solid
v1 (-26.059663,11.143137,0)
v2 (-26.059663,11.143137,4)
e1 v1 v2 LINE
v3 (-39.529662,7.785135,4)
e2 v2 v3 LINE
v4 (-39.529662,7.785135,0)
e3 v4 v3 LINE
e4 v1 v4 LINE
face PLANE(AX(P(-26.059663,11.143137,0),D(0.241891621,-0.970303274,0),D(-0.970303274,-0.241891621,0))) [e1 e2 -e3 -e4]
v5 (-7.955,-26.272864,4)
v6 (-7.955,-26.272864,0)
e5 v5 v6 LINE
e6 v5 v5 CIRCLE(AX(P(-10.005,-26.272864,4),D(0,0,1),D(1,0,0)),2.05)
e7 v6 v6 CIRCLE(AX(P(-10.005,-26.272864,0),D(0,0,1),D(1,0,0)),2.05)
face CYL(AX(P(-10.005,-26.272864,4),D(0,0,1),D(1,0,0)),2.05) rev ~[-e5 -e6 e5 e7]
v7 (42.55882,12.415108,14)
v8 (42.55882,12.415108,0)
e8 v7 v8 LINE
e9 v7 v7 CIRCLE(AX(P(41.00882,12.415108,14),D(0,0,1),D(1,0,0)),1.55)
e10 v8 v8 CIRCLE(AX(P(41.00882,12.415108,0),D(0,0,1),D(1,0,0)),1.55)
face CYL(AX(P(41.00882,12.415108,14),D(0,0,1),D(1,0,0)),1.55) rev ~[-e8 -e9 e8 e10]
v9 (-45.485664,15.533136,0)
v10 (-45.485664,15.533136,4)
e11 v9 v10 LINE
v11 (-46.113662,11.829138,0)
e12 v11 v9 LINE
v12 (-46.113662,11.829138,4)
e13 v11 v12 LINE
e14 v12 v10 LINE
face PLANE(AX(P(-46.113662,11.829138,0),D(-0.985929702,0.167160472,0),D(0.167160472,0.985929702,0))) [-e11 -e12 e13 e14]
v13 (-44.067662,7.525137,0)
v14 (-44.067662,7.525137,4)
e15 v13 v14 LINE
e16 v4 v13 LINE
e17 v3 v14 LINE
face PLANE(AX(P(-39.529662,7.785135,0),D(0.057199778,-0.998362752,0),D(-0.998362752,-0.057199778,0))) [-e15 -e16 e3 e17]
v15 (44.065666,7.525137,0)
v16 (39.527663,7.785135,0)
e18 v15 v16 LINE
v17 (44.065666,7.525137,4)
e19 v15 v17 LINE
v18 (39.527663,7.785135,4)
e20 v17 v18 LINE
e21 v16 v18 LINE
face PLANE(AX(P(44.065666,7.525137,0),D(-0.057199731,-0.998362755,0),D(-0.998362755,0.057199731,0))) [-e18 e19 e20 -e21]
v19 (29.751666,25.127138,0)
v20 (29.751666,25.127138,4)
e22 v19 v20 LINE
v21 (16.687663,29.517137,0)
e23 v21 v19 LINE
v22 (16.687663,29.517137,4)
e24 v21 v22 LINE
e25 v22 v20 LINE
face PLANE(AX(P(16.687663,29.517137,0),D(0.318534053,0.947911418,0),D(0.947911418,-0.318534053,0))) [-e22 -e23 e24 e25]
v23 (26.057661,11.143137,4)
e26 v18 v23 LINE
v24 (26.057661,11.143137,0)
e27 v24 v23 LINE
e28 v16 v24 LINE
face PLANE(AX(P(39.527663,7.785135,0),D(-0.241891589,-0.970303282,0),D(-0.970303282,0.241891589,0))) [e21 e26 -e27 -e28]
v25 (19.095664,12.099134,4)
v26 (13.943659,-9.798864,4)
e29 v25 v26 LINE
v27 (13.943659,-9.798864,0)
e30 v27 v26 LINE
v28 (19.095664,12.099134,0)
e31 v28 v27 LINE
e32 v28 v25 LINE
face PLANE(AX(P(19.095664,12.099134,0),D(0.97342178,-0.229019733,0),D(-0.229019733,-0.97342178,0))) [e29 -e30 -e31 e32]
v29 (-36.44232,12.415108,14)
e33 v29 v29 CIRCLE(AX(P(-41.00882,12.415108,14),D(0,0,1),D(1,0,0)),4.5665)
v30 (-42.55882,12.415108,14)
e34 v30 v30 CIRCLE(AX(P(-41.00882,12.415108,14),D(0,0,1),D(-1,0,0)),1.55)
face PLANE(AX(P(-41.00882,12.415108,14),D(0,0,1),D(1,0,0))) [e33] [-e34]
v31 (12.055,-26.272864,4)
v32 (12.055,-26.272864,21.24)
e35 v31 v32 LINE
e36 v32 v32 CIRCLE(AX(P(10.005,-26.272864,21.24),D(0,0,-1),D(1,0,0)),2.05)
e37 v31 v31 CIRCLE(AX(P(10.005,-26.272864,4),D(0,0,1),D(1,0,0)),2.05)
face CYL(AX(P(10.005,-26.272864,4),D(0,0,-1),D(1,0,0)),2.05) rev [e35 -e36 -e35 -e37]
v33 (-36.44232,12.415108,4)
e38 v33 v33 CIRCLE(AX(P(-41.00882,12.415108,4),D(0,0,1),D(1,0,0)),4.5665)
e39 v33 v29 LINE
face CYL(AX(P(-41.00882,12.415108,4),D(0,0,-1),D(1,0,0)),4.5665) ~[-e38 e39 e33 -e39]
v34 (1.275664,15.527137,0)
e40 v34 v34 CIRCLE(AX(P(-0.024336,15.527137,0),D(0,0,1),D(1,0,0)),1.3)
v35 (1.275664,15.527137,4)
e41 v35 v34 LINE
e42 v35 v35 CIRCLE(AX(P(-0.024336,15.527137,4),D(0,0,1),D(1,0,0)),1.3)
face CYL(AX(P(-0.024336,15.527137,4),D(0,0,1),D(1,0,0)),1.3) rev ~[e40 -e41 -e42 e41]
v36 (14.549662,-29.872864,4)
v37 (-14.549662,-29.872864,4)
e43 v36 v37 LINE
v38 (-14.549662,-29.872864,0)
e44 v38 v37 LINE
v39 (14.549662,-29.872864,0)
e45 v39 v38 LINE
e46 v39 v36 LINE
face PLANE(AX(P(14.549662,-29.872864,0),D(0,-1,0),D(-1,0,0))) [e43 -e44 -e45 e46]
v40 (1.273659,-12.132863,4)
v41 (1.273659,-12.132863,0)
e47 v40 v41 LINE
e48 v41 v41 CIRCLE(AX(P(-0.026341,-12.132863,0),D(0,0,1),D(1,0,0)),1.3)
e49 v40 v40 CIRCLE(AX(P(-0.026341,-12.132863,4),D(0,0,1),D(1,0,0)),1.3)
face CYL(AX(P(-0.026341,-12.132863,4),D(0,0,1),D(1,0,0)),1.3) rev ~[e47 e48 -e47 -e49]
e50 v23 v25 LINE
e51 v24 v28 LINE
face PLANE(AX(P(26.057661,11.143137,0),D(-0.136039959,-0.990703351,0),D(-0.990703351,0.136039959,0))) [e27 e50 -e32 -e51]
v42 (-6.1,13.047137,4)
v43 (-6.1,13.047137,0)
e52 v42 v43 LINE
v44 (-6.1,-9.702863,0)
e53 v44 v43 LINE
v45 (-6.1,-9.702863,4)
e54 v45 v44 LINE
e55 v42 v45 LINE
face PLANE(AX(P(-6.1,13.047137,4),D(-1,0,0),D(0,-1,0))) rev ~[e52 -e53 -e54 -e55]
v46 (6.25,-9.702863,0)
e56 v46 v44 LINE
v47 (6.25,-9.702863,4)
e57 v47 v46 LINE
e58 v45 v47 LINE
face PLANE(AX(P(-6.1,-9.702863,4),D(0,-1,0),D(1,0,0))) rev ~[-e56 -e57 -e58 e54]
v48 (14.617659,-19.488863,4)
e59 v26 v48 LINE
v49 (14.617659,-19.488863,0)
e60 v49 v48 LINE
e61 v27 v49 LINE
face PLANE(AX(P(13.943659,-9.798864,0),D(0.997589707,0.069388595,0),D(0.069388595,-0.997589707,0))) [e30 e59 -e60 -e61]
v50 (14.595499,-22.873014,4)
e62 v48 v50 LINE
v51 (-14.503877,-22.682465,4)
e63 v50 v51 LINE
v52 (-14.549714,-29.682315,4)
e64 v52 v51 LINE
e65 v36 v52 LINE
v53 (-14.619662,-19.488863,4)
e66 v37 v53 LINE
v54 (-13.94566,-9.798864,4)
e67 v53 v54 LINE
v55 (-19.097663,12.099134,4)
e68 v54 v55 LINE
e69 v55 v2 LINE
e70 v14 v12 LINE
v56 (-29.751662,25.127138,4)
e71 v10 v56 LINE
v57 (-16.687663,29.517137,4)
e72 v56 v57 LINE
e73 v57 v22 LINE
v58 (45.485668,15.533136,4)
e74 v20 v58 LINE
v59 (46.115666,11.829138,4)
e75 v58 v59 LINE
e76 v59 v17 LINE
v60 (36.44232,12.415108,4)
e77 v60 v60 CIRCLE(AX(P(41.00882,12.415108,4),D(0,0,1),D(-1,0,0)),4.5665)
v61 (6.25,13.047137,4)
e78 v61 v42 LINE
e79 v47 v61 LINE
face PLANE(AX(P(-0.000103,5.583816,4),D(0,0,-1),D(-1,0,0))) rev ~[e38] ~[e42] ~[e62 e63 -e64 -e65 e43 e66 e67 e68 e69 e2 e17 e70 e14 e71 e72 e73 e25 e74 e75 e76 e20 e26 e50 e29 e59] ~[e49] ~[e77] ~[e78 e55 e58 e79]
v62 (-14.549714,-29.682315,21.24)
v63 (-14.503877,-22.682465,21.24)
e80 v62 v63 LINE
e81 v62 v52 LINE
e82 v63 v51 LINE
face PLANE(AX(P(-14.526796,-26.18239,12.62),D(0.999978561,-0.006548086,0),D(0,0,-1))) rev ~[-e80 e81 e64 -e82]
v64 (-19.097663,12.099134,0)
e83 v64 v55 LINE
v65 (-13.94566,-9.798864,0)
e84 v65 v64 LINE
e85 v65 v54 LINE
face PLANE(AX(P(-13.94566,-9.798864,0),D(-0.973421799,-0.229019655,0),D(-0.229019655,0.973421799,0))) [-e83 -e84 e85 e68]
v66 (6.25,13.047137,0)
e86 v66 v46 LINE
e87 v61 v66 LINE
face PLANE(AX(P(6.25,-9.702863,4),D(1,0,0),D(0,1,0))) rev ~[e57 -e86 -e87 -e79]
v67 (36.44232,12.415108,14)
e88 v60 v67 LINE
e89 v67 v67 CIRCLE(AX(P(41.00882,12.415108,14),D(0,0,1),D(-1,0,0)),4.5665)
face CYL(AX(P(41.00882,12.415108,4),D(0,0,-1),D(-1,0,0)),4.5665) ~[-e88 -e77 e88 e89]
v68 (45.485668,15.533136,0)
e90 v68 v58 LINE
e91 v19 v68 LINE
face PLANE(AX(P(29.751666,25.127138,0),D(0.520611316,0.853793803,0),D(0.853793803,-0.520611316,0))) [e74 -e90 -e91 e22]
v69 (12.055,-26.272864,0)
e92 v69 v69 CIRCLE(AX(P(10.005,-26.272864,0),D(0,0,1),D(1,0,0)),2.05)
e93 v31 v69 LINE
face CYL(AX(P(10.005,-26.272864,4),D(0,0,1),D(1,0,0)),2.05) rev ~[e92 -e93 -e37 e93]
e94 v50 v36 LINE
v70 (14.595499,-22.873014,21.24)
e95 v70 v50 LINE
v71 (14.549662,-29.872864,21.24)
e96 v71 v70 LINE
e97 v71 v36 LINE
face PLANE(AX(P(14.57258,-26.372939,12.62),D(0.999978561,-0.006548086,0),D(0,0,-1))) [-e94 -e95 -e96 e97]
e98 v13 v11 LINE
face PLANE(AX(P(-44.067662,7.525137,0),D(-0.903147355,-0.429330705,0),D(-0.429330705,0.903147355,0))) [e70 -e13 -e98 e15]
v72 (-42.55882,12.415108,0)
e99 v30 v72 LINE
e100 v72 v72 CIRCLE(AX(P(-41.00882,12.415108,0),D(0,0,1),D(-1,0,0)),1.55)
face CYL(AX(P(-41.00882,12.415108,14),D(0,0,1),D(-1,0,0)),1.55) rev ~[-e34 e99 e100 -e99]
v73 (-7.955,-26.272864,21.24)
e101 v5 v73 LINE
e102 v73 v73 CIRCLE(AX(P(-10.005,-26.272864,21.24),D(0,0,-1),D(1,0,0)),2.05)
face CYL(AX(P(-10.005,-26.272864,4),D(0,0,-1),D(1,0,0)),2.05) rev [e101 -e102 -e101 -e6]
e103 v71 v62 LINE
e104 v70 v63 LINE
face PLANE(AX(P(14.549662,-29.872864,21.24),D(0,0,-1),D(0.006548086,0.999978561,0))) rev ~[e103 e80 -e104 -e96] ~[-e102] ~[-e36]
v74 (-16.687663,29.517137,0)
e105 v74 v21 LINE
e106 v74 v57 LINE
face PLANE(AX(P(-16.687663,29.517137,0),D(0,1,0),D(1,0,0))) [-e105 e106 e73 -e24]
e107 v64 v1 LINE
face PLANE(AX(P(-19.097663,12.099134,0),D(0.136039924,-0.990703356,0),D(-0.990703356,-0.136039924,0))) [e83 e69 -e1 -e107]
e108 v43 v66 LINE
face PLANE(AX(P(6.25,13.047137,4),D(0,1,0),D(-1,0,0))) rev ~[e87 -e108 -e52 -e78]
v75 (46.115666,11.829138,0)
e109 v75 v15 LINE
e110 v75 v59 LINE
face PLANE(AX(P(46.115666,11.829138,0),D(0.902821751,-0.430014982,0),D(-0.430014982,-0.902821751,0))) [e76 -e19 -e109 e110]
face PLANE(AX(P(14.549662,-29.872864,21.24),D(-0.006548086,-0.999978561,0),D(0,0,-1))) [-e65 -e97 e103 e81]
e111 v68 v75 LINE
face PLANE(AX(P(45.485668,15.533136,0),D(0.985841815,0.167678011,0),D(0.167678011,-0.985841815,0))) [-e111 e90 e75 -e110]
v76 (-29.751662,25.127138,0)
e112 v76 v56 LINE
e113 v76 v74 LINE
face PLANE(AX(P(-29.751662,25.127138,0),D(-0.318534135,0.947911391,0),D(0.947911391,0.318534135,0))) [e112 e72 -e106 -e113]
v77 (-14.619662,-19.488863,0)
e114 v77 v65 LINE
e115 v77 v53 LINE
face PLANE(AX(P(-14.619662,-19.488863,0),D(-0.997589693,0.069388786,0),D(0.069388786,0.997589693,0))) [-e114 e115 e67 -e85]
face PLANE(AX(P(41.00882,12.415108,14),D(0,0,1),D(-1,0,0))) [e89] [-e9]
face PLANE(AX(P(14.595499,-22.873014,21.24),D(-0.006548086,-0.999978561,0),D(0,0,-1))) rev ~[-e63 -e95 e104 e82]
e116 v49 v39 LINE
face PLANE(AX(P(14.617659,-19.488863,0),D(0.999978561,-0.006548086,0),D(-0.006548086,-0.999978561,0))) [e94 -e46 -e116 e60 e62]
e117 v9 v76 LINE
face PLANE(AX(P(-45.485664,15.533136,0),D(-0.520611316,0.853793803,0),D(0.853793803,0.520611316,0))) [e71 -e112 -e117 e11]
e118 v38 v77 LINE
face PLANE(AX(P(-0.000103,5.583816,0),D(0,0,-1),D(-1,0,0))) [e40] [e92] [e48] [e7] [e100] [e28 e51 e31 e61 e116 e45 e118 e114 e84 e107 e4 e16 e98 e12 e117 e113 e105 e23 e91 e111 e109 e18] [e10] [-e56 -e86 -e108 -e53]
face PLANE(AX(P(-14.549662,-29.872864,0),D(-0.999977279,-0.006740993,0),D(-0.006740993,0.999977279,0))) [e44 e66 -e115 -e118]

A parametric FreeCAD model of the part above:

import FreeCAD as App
import Part
import Sketcher

V = App.Vector


def add_polygon(sketch, points):
    """Adds a closed chain of lines whose ends are joined by coincident constraints."""
    first, n = sketch.GeometryCount, len(points)
    for a, b in zip(points, points[1:] + points[:1]):
        sketch.addGeometry(Part.LineSegment(App.Vector(*a, 0), App.Vector(*b, 0)), False)
    for i in range(n):
        sketch.addConstraint(Sketcher.Constraint("Coincident", first + i, 2, first + (i + 1) % n, 1))

doc = App.newDocument("Part")
body = doc.addObject("PartDesign::Body", "Body")

# Sketch on XY plane
sketch1 = doc.addObject("Sketcher::SketchObject", "Sketch")
body.addObject(sketch1)
sketch1.AttachmentSupport = (doc.XY_Plane, [""])
sketch1.MapMode = "FlatFace"
add_polygon(sketch1, [(16.7, 29.5), (-16.7, 29.5), (-29.8, 25.1), (-45.5, 15.5), (-46.1, 11.8), (-44.1, 7.5), (-39.5, 7.8), (-26.1, 11.1), (-19.1, 12.1), (-13.9, -9.8), (-14.6, -19.5), (-14.5, -29.9), (14.5, -29.9), (14.6, -19.5), (13.9, -9.8), (19.1, 12.1), (26.1, 11.1), (39.5, 7.8), (44.1, 7.5), (46.1, 11.8), (45.5, 15.5), (29.8, 25.1)])  # lines 0-21
sketch1.addConstraint([
    Sketcher.Constraint("Horizontal", 0),
    Sketcher.Constraint("Horizontal", 11),
    Sketcher.Constraint("Symmetric", 2, 2, 19, 2, -2),
    Sketcher.Constraint("Symmetric", 1, 2, 20, 2, -2),
    Sketcher.Constraint("Horizontal", 9, 2, 12, 2),
    Sketcher.Constraint("Horizontal", 8, 2, 13, 2),
    Sketcher.Constraint("Horizontal", 7, 2, 14, 2),
    Sketcher.Constraint("Horizontal", 6, 2, 15, 2),
    Sketcher.Constraint("Horizontal", 5, 2, 16, 2),
    Sketcher.Constraint("Horizontal", 4, 2, 17, 2),
    Sketcher.Constraint("Horizontal", 3, 2, 18, 2),
    Sketcher.Constraint("Equal", 9, 13),
    Sketcher.Constraint("Equal", 8, 14),
    Sketcher.Constraint("Equal", 7, 15),
    Sketcher.Constraint("Equal", 6, 16),
    Sketcher.Constraint("DistanceY", 1, 2, 0, 2, 4.389999),
    Sketcher.Constraint("DistanceX", 4, 2, 0, 2, 27.379999),
    Sketcher.Constraint("DistanceY", 4, 2, 5, 2, 0.259998),
    Sketcher.Constraint("DistanceX", 5, 2, 6, 2, 13.47),
    Sketcher.Constraint("DistanceY", 6, 2, 2, 2, 4.389999),
    Sketcher.Constraint("DistanceX", 7, 2, 0, 2, 2.41),
    Sketcher.Constraint("DistanceY", 9, 2, 8, 2, 9.69),
    Sketcher.Constraint("DistanceX", 6, 2, 9, 2, 11.44),
    Sketcher.Constraint("DistanceX", 9, 2, 10, 2, 0.07),
    Sketcher.Constraint("DistanceX", 17, 2, 18, 2, 2.05),
    Sketcher.Constraint("DistanceX", 19, 2, 18, 2, 0.629999),
    Sketcher.Constraint("DistanceX", 21, 2, 15, 2, 9.369998),
    Sketcher.Constraint("DistanceX", 1, 2, 0, 2, 13.063999),
    Sketcher.Constraint("DistanceX", 2, 2, 1, 2, 15.734002),
    Sketcher.Constraint("DistanceY", 2, 2, 0, 2, 13.984001),
    Sketcher.Constraint("DistanceX", 3, 2, 2, 2, 0.627998),
    Sketcher.Constraint("DistanceY", 3, 2, 2, 2, 3.703999),
    Sketcher.Constraint("DistanceY", 4, 2, 3, 2, 4.304001),
    Sketcher.Constraint("DistanceX", 4, 2, 5, 2, 4.538),
    Sketcher.Constraint("DistanceY", 5, 2, 7, 2, 4.313999),
    Sketcher.Constraint("DistanceY", 8, 2, 6, 2, 20.942001),
    Sketcher.Constraint("DistanceX", 4, 2, 8, 2, 30.122002),
    Sketcher.Constraint("DistanceY", 10, 2, 9, 2, 10.384001),
    Sketcher.Constraint("DistanceX", 11, 2, 15, 2, 11.507999),
    Sketcher.Constraint("DistanceX", 14, 2, 20, 2, 10.656002),
    Sketcher.Constraint("DistanceX", 0, 2, 0, 1, 33.375326),
    Sketcher.Constraint("DistanceY", -1, 1, 1, 2, 25.127138),
])
pad1 = doc.addObject("PartDesign::Pad", "Pad")
body.addObject(pad1)
pad1.Profile = sketch1
pad1.Length = 4

# Sketch on XY plane
sketch2 = doc.addObject("Sketcher::SketchObject", "Sketch001")
body.addObject(sketch2)
sketch2.AttachmentSupport = (doc.XY_Plane, [""])
sketch2.MapMode = "FlatFace"
sketch2.AttachmentOffset = App.Placement(V(0, 0, 4), App.Rotation())
add_polygon(sketch2, [(-6, -10), (6, -10), (6, 13), (-6, 13)])  # lines 0-3
sketch2.addConstraint([
    Sketcher.Constraint("Horizontal", 0),
    Sketcher.Constraint("Vertical", 1),
    Sketcher.Constraint("Horizontal", 2),
    Sketcher.Constraint("Vertical", 3),
    Sketcher.Constraint("DistanceX", 0, 1, 0, 2, 12.35),
    Sketcher.Constraint("DistanceY", 1, 1, 1, 2, 22.75),
    Sketcher.Constraint("DistanceX", 2, 2, -1, 1, 6.1),
    Sketcher.Constraint("DistanceY", 0, 2, -1, 1, 9.702863),
])
pocket1 = doc.addObject("PartDesign::Pocket", "Pocket")
body.addObject(pocket1)
pocket1.Profile = sketch2
pocket1.Type = "ThroughAll"

# Sketch on XY plane
sketch3 = doc.addObject("Sketcher::SketchObject", "Sketch002")
body.addObject(sketch3)
sketch3.AttachmentSupport = (doc.XY_Plane, [""])
sketch3.MapMode = "FlatFace"
sketch3.AttachmentOffset = App.Placement(V(0, 0, 4), App.Rotation())
sketch3.addGeometry([
    Part.Circle(V(-41, 12.4, 0), V(0, 0, 1), 4.6),
    Part.Circle(V(41, 12.4, 0), V(0, 0, 1), 4.6),
], False)
sketch3.addConstraint([
    Sketcher.Constraint("Equal", 0, 1),
    Sketcher.Constraint("Symmetric", 0, 3, 1, 3, -2),
    Sketcher.Constraint("Diameter", 0, 9.133),
    Sketcher.Constraint("DistanceX", 0, 3, -1, 1, 41.00882),
    Sketcher.Constraint("DistanceY", -1, 1, 0, 3, 12.415108),
])
pad2 = doc.addObject("PartDesign::Pad", "Pad001")
body.addObject(pad2)
pad2.Profile = sketch3
pad2.Length = 10

# Sketch on XY plane
sketch4 = doc.addObject("Sketcher::SketchObject", "Sketch003")
body.addObject(sketch4)
sketch4.AttachmentSupport = (doc.XY_Plane, [""])
sketch4.MapMode = "FlatFace"
sketch4.AttachmentOffset = App.Placement(V(0, 0, 4), App.Rotation())
sketch4.addGeometry([
    Part.Circle(V(10, -26.3, 0), V(0, 0, 1), 2),
    Part.Circle(V(-10, -26.3, 0), V(0, 0, 1), 2),
], False)
sketch4.addConstraint([
    Sketcher.Constraint("Equal", 0, 1),
    Sketcher.Constraint("Symmetric", 0, 3, 1, 3, -2),
    Sketcher.Constraint("Diameter", 0, 4.1),
    Sketcher.Constraint("DistanceX", 1, 3, 0, 3, 20.01),
    Sketcher.Constraint("DistanceY", 0, 3, -1, 1, 26.272864),
])
pocket2 = doc.addObject("PartDesign::Pocket", "Pocket001")
body.addObject(pocket2)
pocket2.Profile = sketch4
pocket2.Length = 9.65

# Sketch on XY plane
sketch5 = doc.addObject("Sketcher::SketchObject", "Sketch004")
body.addObject(sketch5)
sketch5.AttachmentSupport = (doc.XY_Plane, [""])
sketch5.MapMode = "FlatFace"
sketch5.AttachmentOffset = App.Placement(V(0, 0, 4), App.Rotation())
sketch5.addGeometry([
    Part.Circle(V(0, -12.1, 0), V(0, 0, 1), 1.3),
    Part.Circle(V(0, 15.5, 0), V(0, 0, 1), 1.3),
], False)
sketch5.addConstraint([
    Sketcher.Constraint("Equal", 0, 1),
    Sketcher.Constraint("Diameter", 0, 2.6),
    Sketcher.Constraint("DistanceY", 0, 3, 1, 3, 27.66),
    Sketcher.Constraint("DistanceX", 0, 3, -1, 1, 0.026341),
    Sketcher.Constraint("DistanceY", 0, 3, -1, 1, 12.132863),
    Sketcher.Constraint("DistanceX", 1, 3, -1, 1, 0.024336),
])
pocket3 = doc.addObject("PartDesign::Pocket", "Pocket002")
body.addObject(pocket3)
pocket3.Profile = sketch5
pocket3.Length = 9.65

# Sketch on an angled plane
sketch6 = doc.addObject("Sketcher::SketchObject", "Sketch005")
body.addObject(sketch6)
sketch6.Placement = App.Placement(V(14.744644, -0.096551, 0), App.Rotation(V(0, 0, -1), V(0.006548086, 0.999978561, 0), V(0.999978561, -0.006548086, 0), "ZXY"))
add_polygon(sketch6, [(-21, -23), (-21, -30), (-4, -30), (-4, -23)])  # lines 0-3
sketch6.addConstraint([
    Sketcher.Constraint("Vertical", 0),
    Sketcher.Constraint("Horizontal", 1),
    Sketcher.Constraint("Vertical", 2),
    Sketcher.Constraint("Horizontal", 3),
    Sketcher.Constraint("DistanceY", 0, 2, 0, 1, 7.0),
    Sketcher.Constraint("DistanceX", 1, 2, -1, 1, 4.0),
    Sketcher.Constraint("DistanceX", 1, 1, 1, 2, 17.24),
    Sketcher.Constraint("DistanceY", 0, 2, -1, 1, 29.776951),
])
pad3 = doc.addObject("PartDesign::Pad", "Pad002")
body.addObject(pad3)
pad3.Profile = sketch6
pad3.Length = 29.1
pad3.Reversed = True

# Sketch on XY plane
sketch7 = doc.addObject("Sketcher::SketchObject", "Sketch006")
body.addObject(sketch7)
sketch7.AttachmentSupport = (doc.XY_Plane, [""])
sketch7.MapMode = "FlatFace"
sketch7.AttachmentOffset = App.Placement(V(0, 0, 4), App.Rotation())
sketch7.addGeometry([
    Part.Circle(V(-10, -26.3, 0), V(0, 0, 1), 2),
    Part.Circle(V(10, -26.3, 0), V(0, 0, 1), 2),
], False)
sketch7.addConstraint([
    Sketcher.Constraint("Equal", 0, 1),
    Sketcher.Constraint("Symmetric", 0, 3, 1, 3, -2),
    Sketcher.Constraint("Diameter", 0, 4.1),
    Sketcher.Constraint("DistanceX", 0, 3, 1, 3, 20.01),
    Sketcher.Constraint("DistanceY", 0, 3, -1, 1, 26.272864),
])
pocket4 = doc.addObject("PartDesign::Pocket", "Pocket003")
body.addObject(pocket4)
pocket4.Profile = sketch7
pocket4.Type = "ThroughAll"
pocket4.Reversed = True

# Sketch on XY plane
sketch8 = doc.addObject("Sketcher::SketchObject", "Sketch007")
body.addObject(sketch8)
sketch8.AttachmentSupport = (doc.XY_Plane, [""])
sketch8.MapMode = "FlatFace"
sketch8.AttachmentOffset = App.Placement(V(0, 0, 14), App.Rotation())
sketch8.addGeometry([
    Part.Circle(V(41, 12.4, 0), V(0, 0, 1), 1.6),
    Part.Circle(V(-41, 12.4, 0), V(0, 0, 1), 1.6),
], False)
sketch8.addConstraint([
    Sketcher.Constraint("Equal", 0, 1),
    Sketcher.Constraint("Symmetric", 0, 3, 1, 3, -2),
    Sketcher.Constraint("Diameter", 0, 3.1),
    Sketcher.Constraint("DistanceX", -1, 1, 0, 3, 41.00882),
    Sketcher.Constraint("DistanceY", -1, 1, 0, 3, 12.415108),
])
pocket5 = doc.addObject("PartDesign::Pocket", "Pocket004")
body.addObject(pocket5)
pocket5.Profile = sketch8
pocket5.Type = "ThroughAll"

doc.recompute()
